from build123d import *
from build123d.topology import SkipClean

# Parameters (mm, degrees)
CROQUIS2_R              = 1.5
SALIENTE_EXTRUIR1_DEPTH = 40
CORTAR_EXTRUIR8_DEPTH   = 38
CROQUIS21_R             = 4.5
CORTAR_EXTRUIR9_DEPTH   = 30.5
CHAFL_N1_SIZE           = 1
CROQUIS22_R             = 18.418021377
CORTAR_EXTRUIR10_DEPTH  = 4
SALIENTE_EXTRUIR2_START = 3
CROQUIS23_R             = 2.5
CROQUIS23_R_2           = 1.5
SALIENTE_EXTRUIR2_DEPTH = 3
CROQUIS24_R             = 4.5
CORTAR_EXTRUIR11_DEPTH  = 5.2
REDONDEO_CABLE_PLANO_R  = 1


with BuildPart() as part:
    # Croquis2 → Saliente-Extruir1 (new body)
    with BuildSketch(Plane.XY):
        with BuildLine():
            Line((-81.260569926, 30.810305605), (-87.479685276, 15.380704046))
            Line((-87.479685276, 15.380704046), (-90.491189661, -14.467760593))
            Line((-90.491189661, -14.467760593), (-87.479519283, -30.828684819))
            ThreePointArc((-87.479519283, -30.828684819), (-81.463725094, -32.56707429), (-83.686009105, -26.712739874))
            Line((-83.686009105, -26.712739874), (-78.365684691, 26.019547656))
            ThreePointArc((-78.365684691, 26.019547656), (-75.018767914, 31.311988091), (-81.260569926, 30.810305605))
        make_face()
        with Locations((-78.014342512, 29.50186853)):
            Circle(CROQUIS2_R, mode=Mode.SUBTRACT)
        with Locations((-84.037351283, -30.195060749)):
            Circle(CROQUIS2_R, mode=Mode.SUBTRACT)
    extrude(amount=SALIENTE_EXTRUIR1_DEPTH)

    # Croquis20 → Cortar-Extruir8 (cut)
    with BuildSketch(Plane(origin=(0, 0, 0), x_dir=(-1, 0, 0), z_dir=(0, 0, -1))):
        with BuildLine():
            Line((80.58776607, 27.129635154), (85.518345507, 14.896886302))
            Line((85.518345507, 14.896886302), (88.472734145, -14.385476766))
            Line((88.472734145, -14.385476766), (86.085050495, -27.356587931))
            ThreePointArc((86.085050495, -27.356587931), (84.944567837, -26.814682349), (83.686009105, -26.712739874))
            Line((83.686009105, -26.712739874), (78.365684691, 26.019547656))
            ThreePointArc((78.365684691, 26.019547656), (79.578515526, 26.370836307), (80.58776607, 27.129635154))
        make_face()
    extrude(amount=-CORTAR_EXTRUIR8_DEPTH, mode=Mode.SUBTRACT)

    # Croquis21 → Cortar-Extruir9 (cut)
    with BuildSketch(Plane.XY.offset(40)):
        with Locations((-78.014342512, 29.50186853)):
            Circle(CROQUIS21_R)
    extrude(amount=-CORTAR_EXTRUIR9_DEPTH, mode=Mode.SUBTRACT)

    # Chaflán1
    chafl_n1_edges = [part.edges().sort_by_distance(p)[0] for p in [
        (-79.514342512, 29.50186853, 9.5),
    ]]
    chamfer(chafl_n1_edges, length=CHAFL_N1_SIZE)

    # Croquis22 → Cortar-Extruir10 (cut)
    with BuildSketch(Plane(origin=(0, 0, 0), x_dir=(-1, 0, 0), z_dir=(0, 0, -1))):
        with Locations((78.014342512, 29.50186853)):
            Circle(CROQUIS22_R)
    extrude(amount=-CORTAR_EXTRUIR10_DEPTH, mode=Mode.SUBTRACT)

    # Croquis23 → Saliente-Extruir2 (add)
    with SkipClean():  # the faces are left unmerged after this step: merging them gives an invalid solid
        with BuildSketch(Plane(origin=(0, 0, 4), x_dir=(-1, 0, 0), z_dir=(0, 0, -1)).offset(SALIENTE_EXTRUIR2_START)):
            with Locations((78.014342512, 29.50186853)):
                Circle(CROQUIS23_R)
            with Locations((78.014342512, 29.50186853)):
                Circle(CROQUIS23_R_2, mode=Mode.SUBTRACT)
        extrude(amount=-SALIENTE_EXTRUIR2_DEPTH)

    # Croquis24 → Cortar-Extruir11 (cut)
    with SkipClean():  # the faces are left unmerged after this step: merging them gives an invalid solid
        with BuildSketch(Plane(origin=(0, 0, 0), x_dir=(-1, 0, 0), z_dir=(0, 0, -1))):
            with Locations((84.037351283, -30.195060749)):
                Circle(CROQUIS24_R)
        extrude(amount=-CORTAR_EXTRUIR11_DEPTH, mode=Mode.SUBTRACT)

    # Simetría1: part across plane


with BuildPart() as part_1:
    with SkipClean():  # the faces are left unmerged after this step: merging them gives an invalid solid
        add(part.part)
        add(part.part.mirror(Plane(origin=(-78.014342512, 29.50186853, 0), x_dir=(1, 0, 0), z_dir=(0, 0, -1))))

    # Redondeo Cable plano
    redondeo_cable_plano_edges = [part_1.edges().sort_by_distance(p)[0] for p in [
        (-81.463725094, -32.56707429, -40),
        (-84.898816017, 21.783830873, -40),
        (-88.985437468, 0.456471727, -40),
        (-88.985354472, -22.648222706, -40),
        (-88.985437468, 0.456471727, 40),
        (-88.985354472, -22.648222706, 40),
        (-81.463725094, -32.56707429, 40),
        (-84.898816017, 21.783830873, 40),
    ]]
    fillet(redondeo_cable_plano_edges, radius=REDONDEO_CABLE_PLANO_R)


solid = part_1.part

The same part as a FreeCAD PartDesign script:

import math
import FreeCAD as App
import Part
import Sketcher
Q = App.Units.Quantity


def edges_at(feature, points):
    """Names of the edges that pass closest to the given points."""
    edges = feature.Shape.Edges
    near = lambda p: min(range(len(edges)), key=lambda i: edges[i].distToShape(Part.Vertex(*p))[0])
    return sorted({f"Edge{near(p) + 1}" for p in points})

doc = App.newDocument("Part")
body = doc.addObject("PartDesign::Body", "Body")

# Sketch on XY plane
sketch1 = body.newObject("Sketcher::SketchObject", "Sketch")
sketch1.AttachmentSupport = (doc.getObject("XY_Plane"), [""])
sketch1.MapMode = "FlatFace"
sketch1.addGeometry([
    Part.LineSegment(App.Vector(-81.26057, 30.810306, 0), App.Vector(-87.479685, 15.380704, 0)),  # 0
    Part.LineSegment(App.Vector(-87.479685, 15.380704, 0), App.Vector(-90.49119, -14.467761, 0)),  # 1
    Part.LineSegment(App.Vector(-90.49119, -14.467761, 0), App.Vector(-87.479519, -30.828685, 0)),  # 2
    Part.ArcOfCircle(Part.Circle(App.Vector(-84.037351, -30.195061, 0), App.Vector(0, 0, 1), 3.5), math.radians(-169.569922), math.radians(84.238747)),  # 3
    Part.LineSegment(App.Vector(-83.686009, -26.71274, 0), App.Vector(-78.365685, 26.019548, 0)),  # 4
    Part.ArcOfCircle(Part.Circle(App.Vector(-78.014343, 29.501869, 0), App.Vector(0, 0, 1), 3.5), math.radians(-95.761253), math.radians(158.047416)),  # 5
    Part.Circle(App.Vector(-84.037351, -30.195061, 0), App.Vector(0, 0, 1), 1.5),  # 6
    Part.Circle(App.Vector(-78.014343, 29.501869, 0), App.Vector(0, 0, 1), 1.5),  # 7
], False)
sketch1.addConstraint([
    Sketcher.Constraint("Coincident", 0, 2, 1, 1),
    Sketcher.Constraint("Coincident", 1, 2, 2, 1),
    Sketcher.Constraint("Tangent", 2, 2, 3, 1),
    Sketcher.Constraint("Coincident", 3, 2, 4, 1),
    Sketcher.Constraint("Coincident", 4, 2, 5, 1),
    Sketcher.Constraint("Tangent", 5, 2, 0, 1),
    Sketcher.Constraint("Coincident", 6, 3, 3, 3),
    Sketcher.Constraint("Coincident", 7, 3, 5, 3),
    Sketcher.Constraint("Equal", 3, 5),
    Sketcher.Constraint("Equal", 6, 7),
    Sketcher.Constraint("Parallel", 1, 4),
    Sketcher.Constraint("Equal", 0, 2),
    Sketcher.Constraint("Diameter", 6, Q("3 mm")),
    Sketcher.Constraint("Radius", 3, Q("3.5 mm")),
    Sketcher.Constraint("Distance", 1, Q("30 mm")),
    Sketcher.Constraint("Distance", 4, Q("53 mm")),
    Sketcher.Constraint("DistanceX", 0, 2, 4, 2, Q("9.114001 mm")),
    Sketcher.Constraint("DistanceY", 3, 3, 1, 2, Q("15.7273 mm")),
    Sketcher.Constraint("DistanceY", 0, 2, 5, 2, Q("15.429602 mm")),
    Sketcher.Constraint("DistanceX", 3, 3, -1, 1, Q("84.037351 mm")),
    Sketcher.Constraint("DistanceY", 3, 3, -1, 1, Q("30.195061 mm")),
    Sketcher.Constraint("DistanceY", -1, 1, 5, 3, Q("29.501869 mm")),
])
pad1 = body.newObject("PartDesign::Pad", "Pad")
pad1.Profile = sketch1
pad1.Length = 40

# Sketch on XY plane
sketch2 = body.newObject("Sketcher::SketchObject", "Sketch001")
sketch2.AttachmentSupport = (doc.getObject("XY_Plane"), [""])
sketch2.MapMode = "FlatFace"
sketch2.addGeometry([
    Part.LineSegment(App.Vector(-85.518346, 14.896886, 0), App.Vector(-80.587766, 27.129635, 0)),  # 0
    Part.ArcOfCircle(Part.Circle(App.Vector(-78.014343, 29.501869, 0), App.Vector(0, 0, 1), 3.5), math.radians(-137.329518), math.radians(-95.761253)),  # 1
    Part.LineSegment(App.Vector(-78.365685, 26.019548, 0), App.Vector(-83.686009, -26.71274, 0)),  # 2
    Part.ArcOfCircle(Part.Circle(App.Vector(-84.037351, -30.195061, 0), App.Vector(0, 0, 1), 3.5), math.radians(84.238747), math.radians(125.807011)),  # 3
    Part.LineSegment(App.Vector(-86.08505, -27.356588, 0), App.Vector(-88.472734, -14.385477, 0)),  # 4
    Part.LineSegment(App.Vector(-88.472734, -14.385477, 0), App.Vector(-85.518346, 14.896886, 0)),  # 5
], False)
sketch2.addConstraint([
    Sketcher.Constraint("Coincident", 0, 2, 1, 1),
    Sketcher.Constraint("Coincident", 1, 2, 2, 1),
    Sketcher.Constraint("Coincident", 2, 2, 3, 1),
    Sketcher.Constraint("Coincident", 3, 2, 4, 1),
    Sketcher.Constraint("Coincident", 4, 2, 5, 1),
    Sketcher.Constraint("Coincident", 5, 2, 0, 1),
    Sketcher.Constraint("Equal", 1, 3),
    Sketcher.Constraint("Parallel", 2, 5),
    Sketcher.Constraint("Equal", 0, 4),
    Sketcher.Constraint("Radius", 1, Q("3.5 mm")),
    Sketcher.Constraint("Distance", 2, Q("53 mm")),
    Sketcher.Constraint("DistanceX", 3, 2, 3, 3, Q("2.047699 mm")),
    Sketcher.Constraint("Distance", 0, Q("13.189039 mm")),
    Sketcher.Constraint("DistanceY", -1, 1, 1, 3, Q("29.501869 mm")),
    Sketcher.Constraint("DistanceX", 3, 3, -1, 1, Q("84.037351 mm")),
    Sketcher.Constraint("DistanceY", 3, 3, -1, 1, Q("30.195061 mm")),
    Sketcher.Constraint("DistanceX", 2, 2, -1, 1, Q("83.686009 mm")),
    Sketcher.Constraint("DistanceX", 0, 2, 1, 2, Q("2.222081 mm")),
    Sketcher.Constraint("DistanceY", 1, 2, 1, 3, Q("3.482321 mm")),
    Sketcher.Constraint("DistanceY", 3, 2, 4, 2, Q("12.971111 mm")),
])
pocket1 = body.newObject("PartDesign::Pocket", "Pocket")
pocket1.Profile = sketch2
pocket1.Length = 38
pocket1.Reversed = True

# Sketch on XY plane
sketch3 = body.newObject("Sketcher::SketchObject", "Sketch002")
sketch3.AttachmentSupport = (doc.getObject("XY_Plane"), [""])
sketch3.MapMode = "FlatFace"
sketch3.AttachmentOffset = App.Placement(App.Vector(0, 0, 40), App.Rotation())
sketch3.addGeometry(Part.Circle(App.Vector(-78.014343, 29.501869, 0), App.Vector(0, 0, 1), 4.5), False)
sketch3.addConstraint([
    Sketcher.Constraint("Diameter", 0, Q("9 mm")),
    Sketcher.Constraint("DistanceY", -1, 1, 0, 3, Q("29.501869 mm")),
    Sketcher.Constraint("DistanceX", 0, 3, -1, 1, Q("78.014343 mm")),
])
pocket2 = body.newObject("PartDesign::Pocket", "Pocket001")
pocket2.Profile = sketch3
pocket2.Length = 30.5
doc.recompute()

chamfer = body.newObject("PartDesign::Chamfer", "Chamfer")
chamfer.Base = (pocket2, edges_at(pocket2, [(-79.514, 29.502, 9.5)]))
chamfer.Size = 1

# Sketch on XY plane
sketch4 = body.newObject("Sketcher::SketchObject", "Sketch003")
sketch4.AttachmentSupport = (doc.getObject("XY_Plane"), [""])
sketch4.MapMode = "FlatFace"
sketch4.addGeometry(Part.Circle(App.Vector(-78.014343, 29.501869, 0), App.Vector(0, 0, 1), 18.418021), False)
sketch4.addConstraint([
    Sketcher.Constraint("Diameter", 0, Q("36.836043 mm")),
    Sketcher.Constraint("DistanceY", -1, 1, 0, 3, Q("29.501869 mm")),
    Sketcher.Constraint("DistanceX", 0, 3, -1, 1, Q("78.014343 mm")),
])
pocket3 = body.newObject("PartDesign::Pocket", "Pocket002")
pocket3.Profile = sketch4
pocket3.Length = 4
pocket3.Reversed = True

# Sketch on XY plane
sketch5 = body.newObject("Sketcher::SketchObject", "Sketch004")
sketch5.AttachmentSupport = (doc.getObject("XY_Plane"), [""])
sketch5.MapMode = "FlatFace"
sketch5.AttachmentOffset = App.Placement(App.Vector(0, 0, 1), App.Rotation())
sketch5.addGeometry([
    Part.Circle(App.Vector(-78.014343, 29.501869, 0), App.Vector(0, 0, 1), 2.5),
    Part.Circle(App.Vector(-78.014343, 29.501869, 0), App.Vector(0, 0, 1), 1.5),
], False)
sketch5.addConstraint([
    Sketcher.Constraint("Coincident", 1, 3, 0, 3),
    Sketcher.Constraint("Diameter", 0, Q("5 mm")),
    Sketcher.Constraint("Diameter", 1, Q("3 mm")),
    Sketcher.Constraint("DistanceY", -1, 1, 0, 3, Q("29.501869 mm")),
    Sketcher.Constraint("DistanceX", 0, 3, -1, 1, Q("78.014343 mm")),
])
pad2 = body.newObject("PartDesign::Pad", "Pad001")
pad2.Profile = sketch5
pad2.Length = 3

# Sketch on XY plane
sketch6 = body.newObject("Sketcher::SketchObject", "Sketch005")
sketch6.AttachmentSupport = (doc.getObject("XY_Plane"), [""])
sketch6.MapMode = "FlatFace"
sketch6.addGeometry(Part.Circle(App.Vector(-84.037351, -30.195061, 0), App.Vector(0, 0, 1), 4.5), False)
sketch6.addConstraint([
    Sketcher.Constraint("Diameter", 0, Q("9 mm")),
    Sketcher.Constraint("DistanceX", 0, 3, -1, 1, Q("84.037351 mm")),
    Sketcher.Constraint("DistanceY", 0, 3, -1, 1, Q("30.195061 mm")),
])
pocket4 = body.newObject("PartDesign::Pocket", "Pocket003")
pocket4.Profile = sketch6
pocket4.Length = 5.2
pocket4.Reversed = True
body2 = doc.addObject("PartDesign::Body", "Body001")
doc.recompute()

body2.BaseFeature = body
doc.recompute()

mirroring = doc.addObject("Part::Mirroring", "Mirroring")
mirroring.Source = body
mirroring.Base = App.Vector(-78.014343, 29.501869, 0)
mirroring.Normal = App.Vector(0, 0, -1)
body3 = doc.addObject("PartDesign::Body", "Body002")
body3.BaseFeature = mirroring
boolean = body2.newObject("PartDesign::Boolean", "Boolean")
boolean.Type = "Fuse"
boolean.addObjects([body3])
doc.recompute()

fillet = body2.newObject("PartDesign::Fillet", "Fillet")
fillet.Base = (boolean, edges_at(boolean, [
    (-81.464, -32.567, -40),
    (-84.899, 21.784, -40),
    (-88.985, 0.456, -40),
    (-88.985, -22.648, -40),
    (-88.985, 0.456, 40),
    (-88.985, -22.648, 40),
    (-81.464, -32.567, 40),
    (-84.899, 21.784, 40),
]))
fillet.Radius = 1
mirroring.Visibility = False

doc.recompute()
